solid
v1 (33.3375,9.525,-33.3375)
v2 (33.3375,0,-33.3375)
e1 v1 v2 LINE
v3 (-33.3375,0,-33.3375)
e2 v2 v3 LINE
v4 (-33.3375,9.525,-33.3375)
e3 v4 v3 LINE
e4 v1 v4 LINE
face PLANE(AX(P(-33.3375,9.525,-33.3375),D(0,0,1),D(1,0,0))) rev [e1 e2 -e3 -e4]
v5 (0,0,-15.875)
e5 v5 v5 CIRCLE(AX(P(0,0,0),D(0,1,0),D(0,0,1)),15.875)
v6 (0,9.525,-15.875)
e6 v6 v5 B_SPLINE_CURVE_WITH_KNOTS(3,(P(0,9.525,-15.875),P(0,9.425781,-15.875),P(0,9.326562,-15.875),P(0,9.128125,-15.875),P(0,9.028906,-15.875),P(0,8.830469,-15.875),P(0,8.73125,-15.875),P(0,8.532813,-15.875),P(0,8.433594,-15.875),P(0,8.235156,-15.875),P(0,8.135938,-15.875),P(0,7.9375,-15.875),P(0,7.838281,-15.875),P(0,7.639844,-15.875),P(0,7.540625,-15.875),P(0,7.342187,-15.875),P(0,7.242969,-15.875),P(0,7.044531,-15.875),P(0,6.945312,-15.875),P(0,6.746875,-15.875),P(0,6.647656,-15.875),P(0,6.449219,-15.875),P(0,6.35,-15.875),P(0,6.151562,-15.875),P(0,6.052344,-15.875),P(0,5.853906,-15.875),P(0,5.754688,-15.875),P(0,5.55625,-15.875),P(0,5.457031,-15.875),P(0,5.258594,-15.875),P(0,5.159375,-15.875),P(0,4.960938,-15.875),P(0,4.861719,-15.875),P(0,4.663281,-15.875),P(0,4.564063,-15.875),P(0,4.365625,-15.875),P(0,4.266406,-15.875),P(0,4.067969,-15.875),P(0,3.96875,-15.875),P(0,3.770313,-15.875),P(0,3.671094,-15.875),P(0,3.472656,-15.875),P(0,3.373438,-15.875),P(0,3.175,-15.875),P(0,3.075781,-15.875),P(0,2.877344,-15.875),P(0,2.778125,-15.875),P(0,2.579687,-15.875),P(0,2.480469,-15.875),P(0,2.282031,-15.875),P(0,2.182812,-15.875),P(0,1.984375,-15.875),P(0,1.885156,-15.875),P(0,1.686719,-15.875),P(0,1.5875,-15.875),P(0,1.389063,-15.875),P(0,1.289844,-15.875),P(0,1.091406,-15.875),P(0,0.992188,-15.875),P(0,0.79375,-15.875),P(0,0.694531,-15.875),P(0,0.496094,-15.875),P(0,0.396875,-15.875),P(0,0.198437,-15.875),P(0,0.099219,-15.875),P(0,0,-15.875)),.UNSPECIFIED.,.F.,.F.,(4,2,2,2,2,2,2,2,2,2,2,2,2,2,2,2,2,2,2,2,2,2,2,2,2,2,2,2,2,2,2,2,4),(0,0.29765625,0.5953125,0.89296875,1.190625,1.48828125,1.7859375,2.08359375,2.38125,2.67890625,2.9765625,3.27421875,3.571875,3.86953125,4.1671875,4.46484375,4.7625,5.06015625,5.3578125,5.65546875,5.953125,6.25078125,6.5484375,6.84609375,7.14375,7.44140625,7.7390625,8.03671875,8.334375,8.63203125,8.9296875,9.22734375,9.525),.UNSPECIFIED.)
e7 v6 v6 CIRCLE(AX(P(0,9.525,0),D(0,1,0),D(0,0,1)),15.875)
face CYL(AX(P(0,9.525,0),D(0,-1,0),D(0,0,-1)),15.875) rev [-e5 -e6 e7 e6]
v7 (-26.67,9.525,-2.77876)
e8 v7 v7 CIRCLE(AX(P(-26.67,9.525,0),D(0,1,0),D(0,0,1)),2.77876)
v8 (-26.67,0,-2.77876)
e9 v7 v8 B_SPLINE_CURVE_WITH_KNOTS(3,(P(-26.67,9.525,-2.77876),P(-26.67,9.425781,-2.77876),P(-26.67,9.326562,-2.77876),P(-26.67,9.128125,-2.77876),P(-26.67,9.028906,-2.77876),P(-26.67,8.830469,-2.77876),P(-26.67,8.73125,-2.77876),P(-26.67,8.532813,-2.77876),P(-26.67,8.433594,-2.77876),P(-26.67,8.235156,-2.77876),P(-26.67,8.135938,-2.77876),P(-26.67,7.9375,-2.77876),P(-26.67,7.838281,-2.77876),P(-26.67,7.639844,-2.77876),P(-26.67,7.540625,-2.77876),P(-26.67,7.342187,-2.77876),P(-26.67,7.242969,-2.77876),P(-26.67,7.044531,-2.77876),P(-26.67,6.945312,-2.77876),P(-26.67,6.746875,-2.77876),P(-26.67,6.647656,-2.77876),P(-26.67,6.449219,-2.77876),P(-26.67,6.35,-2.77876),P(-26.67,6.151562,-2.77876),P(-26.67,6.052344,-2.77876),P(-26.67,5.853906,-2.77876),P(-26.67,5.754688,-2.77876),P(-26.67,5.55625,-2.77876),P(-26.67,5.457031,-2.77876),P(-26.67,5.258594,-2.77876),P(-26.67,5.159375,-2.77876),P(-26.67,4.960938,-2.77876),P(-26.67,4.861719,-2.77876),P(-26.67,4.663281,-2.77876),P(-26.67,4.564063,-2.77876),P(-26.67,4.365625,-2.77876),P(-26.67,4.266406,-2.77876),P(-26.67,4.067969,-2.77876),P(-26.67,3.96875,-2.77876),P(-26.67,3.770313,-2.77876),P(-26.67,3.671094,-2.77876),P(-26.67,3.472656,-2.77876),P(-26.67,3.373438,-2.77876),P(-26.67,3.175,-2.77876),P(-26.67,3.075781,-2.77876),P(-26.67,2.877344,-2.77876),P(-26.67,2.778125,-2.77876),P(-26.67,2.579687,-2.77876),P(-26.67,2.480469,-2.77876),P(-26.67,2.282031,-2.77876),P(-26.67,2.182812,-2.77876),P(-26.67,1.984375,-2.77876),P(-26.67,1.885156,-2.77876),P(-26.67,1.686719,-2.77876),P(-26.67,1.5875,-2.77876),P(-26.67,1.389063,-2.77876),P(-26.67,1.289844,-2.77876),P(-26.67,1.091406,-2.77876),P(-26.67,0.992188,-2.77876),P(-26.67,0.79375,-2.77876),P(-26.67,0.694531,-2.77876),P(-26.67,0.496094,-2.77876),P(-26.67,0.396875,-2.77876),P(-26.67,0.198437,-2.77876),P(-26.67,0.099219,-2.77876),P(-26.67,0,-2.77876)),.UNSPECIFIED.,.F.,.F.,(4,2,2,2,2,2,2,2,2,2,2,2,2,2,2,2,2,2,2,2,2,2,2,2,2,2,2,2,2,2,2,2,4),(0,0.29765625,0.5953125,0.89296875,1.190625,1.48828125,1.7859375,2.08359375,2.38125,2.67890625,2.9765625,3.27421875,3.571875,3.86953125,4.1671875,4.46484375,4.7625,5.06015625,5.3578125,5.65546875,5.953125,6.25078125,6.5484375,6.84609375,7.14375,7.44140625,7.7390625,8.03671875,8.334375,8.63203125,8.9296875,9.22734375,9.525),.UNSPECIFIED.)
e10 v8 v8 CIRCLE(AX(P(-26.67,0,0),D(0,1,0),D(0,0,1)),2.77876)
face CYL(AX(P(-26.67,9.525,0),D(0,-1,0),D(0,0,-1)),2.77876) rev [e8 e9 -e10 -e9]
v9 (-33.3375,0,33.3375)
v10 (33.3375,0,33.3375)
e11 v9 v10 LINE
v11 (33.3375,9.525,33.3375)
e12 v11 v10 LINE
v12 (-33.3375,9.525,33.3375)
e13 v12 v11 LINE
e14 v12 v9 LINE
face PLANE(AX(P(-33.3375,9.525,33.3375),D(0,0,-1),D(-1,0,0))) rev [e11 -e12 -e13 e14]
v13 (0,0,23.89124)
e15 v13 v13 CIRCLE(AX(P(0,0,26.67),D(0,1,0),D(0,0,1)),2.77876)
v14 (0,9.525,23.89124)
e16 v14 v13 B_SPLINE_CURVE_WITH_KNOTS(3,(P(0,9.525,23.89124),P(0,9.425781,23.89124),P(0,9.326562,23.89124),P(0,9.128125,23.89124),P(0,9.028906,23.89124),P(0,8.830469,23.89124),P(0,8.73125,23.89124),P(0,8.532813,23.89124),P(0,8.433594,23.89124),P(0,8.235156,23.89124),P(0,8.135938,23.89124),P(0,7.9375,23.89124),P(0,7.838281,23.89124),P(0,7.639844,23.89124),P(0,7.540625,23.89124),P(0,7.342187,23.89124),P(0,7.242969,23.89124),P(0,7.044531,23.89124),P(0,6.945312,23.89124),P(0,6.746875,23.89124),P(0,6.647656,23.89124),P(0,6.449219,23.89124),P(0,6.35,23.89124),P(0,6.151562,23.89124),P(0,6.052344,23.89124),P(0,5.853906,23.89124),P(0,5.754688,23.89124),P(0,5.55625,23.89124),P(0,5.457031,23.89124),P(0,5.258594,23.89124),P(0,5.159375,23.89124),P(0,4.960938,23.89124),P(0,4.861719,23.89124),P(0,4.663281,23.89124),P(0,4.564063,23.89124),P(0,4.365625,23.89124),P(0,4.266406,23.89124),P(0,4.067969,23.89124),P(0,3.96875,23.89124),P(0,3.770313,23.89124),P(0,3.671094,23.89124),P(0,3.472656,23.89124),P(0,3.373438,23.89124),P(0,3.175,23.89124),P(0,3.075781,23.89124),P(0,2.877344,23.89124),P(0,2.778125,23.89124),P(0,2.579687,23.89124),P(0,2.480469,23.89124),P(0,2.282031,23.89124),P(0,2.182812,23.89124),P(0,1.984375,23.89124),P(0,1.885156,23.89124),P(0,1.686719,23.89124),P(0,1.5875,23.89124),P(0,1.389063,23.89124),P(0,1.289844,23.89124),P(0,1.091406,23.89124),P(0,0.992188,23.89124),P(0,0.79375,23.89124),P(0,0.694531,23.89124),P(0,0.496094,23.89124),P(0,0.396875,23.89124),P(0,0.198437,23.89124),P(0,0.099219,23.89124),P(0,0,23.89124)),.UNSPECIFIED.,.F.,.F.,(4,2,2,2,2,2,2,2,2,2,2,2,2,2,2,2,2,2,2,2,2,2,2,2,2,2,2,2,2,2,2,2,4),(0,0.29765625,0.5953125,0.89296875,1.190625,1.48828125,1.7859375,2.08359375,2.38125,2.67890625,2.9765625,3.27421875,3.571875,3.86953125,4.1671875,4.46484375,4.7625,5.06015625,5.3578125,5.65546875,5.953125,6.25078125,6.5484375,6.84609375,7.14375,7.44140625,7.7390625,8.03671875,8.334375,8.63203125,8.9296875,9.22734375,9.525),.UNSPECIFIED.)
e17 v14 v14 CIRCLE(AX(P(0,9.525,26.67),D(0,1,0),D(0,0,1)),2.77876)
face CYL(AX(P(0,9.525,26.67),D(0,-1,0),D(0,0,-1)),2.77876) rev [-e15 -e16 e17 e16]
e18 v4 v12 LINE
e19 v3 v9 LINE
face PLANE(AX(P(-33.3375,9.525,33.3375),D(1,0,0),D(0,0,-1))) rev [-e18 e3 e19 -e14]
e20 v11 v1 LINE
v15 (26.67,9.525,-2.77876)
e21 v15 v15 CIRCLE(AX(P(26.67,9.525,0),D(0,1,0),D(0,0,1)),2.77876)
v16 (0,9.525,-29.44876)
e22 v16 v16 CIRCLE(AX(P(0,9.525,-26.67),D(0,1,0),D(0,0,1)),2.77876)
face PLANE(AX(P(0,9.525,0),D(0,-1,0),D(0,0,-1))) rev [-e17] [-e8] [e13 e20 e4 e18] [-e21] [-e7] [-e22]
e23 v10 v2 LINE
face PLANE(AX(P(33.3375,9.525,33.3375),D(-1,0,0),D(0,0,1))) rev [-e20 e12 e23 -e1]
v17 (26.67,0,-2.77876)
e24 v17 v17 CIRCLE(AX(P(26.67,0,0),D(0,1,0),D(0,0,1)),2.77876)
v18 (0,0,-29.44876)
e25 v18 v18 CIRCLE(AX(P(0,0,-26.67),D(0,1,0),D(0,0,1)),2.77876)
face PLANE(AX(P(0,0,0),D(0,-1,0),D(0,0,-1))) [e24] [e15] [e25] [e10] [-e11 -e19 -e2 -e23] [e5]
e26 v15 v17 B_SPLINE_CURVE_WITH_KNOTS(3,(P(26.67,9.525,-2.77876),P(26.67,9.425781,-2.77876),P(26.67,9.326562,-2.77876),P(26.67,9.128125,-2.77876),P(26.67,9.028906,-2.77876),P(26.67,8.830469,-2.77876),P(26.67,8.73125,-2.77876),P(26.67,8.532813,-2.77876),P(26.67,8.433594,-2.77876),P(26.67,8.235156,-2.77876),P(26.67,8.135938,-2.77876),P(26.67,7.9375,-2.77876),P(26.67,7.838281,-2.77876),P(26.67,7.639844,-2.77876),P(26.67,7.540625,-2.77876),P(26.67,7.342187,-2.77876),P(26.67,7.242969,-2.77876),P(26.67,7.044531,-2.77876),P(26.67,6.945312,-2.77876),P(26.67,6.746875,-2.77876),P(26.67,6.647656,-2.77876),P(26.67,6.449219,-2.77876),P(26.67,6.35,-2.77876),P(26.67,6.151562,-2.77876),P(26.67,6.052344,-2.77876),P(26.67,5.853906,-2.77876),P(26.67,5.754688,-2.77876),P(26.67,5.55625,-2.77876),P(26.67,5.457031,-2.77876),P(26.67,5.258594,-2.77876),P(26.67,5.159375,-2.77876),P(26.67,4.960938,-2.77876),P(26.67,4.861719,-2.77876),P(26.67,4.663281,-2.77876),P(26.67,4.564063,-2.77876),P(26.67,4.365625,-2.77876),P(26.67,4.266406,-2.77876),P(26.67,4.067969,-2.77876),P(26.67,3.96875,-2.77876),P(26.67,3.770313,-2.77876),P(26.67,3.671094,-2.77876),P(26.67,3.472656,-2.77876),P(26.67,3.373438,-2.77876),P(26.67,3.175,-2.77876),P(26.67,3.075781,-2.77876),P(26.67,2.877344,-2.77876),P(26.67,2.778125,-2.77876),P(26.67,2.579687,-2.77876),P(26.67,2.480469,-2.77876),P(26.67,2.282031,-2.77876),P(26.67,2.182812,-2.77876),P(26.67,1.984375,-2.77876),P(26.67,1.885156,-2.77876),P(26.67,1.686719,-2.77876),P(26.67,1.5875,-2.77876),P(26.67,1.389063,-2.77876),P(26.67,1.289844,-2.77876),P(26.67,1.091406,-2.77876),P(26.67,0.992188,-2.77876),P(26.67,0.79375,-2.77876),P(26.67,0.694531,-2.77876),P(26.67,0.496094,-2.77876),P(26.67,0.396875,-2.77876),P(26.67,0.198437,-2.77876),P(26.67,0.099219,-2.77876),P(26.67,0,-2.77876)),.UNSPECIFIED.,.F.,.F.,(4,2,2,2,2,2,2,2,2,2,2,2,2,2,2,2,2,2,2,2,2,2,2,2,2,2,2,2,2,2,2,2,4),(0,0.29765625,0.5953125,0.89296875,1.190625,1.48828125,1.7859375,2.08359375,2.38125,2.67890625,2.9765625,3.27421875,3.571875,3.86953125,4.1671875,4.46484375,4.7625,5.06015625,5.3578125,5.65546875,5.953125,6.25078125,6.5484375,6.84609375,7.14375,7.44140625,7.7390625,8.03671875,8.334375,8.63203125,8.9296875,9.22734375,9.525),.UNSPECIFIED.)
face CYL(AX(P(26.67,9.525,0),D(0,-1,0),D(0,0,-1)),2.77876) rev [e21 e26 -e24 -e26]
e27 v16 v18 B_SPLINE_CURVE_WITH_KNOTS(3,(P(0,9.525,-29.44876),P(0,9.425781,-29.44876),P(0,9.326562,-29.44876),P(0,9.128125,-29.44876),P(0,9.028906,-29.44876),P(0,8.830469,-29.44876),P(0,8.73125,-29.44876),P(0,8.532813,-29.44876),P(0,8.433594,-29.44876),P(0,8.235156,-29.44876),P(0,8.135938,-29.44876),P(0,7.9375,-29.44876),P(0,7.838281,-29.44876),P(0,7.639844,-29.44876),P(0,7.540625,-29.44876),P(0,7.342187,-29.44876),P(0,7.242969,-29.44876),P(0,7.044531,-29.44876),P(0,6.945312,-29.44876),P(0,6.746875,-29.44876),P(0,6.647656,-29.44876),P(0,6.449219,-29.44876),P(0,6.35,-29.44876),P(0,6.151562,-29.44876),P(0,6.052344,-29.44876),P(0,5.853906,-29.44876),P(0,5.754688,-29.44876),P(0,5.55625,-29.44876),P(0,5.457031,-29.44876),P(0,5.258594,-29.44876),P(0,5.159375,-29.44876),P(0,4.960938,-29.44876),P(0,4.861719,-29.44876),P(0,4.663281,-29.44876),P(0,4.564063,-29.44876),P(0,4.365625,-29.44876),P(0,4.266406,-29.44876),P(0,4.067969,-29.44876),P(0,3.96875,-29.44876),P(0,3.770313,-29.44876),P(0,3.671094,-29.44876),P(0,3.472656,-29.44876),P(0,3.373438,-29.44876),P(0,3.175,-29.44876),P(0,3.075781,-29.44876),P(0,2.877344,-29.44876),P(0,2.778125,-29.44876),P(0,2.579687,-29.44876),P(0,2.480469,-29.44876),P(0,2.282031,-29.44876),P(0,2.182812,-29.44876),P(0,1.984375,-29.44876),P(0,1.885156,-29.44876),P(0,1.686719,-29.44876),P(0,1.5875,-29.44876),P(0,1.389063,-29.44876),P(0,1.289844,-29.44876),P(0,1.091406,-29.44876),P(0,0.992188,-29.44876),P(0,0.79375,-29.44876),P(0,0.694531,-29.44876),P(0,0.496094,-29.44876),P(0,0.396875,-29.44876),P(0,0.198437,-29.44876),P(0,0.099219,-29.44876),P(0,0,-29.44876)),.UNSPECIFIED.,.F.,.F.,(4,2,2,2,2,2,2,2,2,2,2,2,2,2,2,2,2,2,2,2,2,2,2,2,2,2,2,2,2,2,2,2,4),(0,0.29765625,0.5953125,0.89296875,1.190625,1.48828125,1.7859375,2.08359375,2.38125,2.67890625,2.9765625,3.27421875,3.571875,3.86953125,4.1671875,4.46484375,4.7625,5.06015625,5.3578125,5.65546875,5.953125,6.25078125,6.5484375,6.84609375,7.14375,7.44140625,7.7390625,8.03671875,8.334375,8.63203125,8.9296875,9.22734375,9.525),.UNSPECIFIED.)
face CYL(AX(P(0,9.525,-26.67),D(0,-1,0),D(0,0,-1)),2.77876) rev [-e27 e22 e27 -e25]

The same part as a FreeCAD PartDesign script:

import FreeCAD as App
import Part
import Sketcher
from FreeCAD import Vector
Q = App.Units.Quantity

doc = App.newDocument("Part")
body = doc.addObject("PartDesign::Body", "Body")

sketch1 = body.newObject("Sketcher::SketchObject", "Sketch")
sketch1.AttachmentSupport = (doc.getObject("XZ_Plane"), [""])
sketch1.MapMode = "FlatFace"
sketch1.addGeometry(Part.LineSegment(Vector(-33.3, -33.3, 0), Vector(-33.3, 33.3, 0)), False)
sketch1.addGeometry(Part.LineSegment(Vector(-33.3, 33.3, 0), Vector(33.3, 33.3, 0)), False)
sketch1.addGeometry(Part.LineSegment(Vector(33.3, 33.3, 0), Vector(33.3, -33.3, 0)), False)
sketch1.addGeometry(Part.LineSegment(Vector(33.3, -33.3, 0), Vector(-33.3, -33.3, 0)), False)
sketch1.addGeometry(Part.Circle(Vector(0, 26.7, 0), Vector(0, 0, 1), 2.8), False)
sketch1.addGeometry(Part.Circle(Vector(-26.7, 0, 0), Vector(0, 0, 1), 2.8), False)
sketch1.addGeometry(Part.Circle(Vector(0, 0, 0), Vector(0, 0, 1), 15.9), False)
sketch1.addGeometry(Part.Circle(Vector(26.7, 0, 0), Vector(0, 0, 1), 2.8), False)
sketch1.addGeometry(Part.Circle(Vector(0, -26.7, 0), Vector(0, 0, 1), 2.8), False)
sketch1.addConstraint(Sketcher.Constraint("Coincident", 0, 2, 1, 1))
sketch1.addConstraint(Sketcher.Constraint("Coincident", 1, 2, 2, 1))
sketch1.addConstraint(Sketcher.Constraint("Coincident", 2, 2, 3, 1))
sketch1.addConstraint(Sketcher.Constraint("Coincident", 3, 2, 0, 1))
sketch1.addConstraint(Sketcher.Constraint("Vertical", 0))
sketch1.addConstraint(Sketcher.Constraint("Horizontal", 1))
sketch1.addConstraint(Sketcher.Constraint("Vertical", 2))
sketch1.addConstraint(Sketcher.Constraint("Horizontal", 3))
sketch1.addConstraint(Sketcher.Constraint("Coincident", 6, 3, -1, 1))
sketch1.addConstraint(Sketcher.Constraint("Equal", 4, 5))
sketch1.addConstraint(Sketcher.Constraint("Equal", 5, 7))
sketch1.addConstraint(Sketcher.Constraint("Equal", 7, 8))
sketch1.addConstraint(Sketcher.Constraint("Symmetric", 5, 3, 7, 3, -1, 1))
sketch1.addConstraint(Sketcher.Constraint("Symmetric", 4, 3, 8, 3, -1, 1))
sketch1.addConstraint(Sketcher.Constraint("Symmetric", 0, 2, 2, 2, -1, 1))
sketch1.addConstraint(Sketcher.Constraint("PointOnObject", 4, 3, -2))
sketch1.addConstraint(Sketcher.Constraint("PointOnObject", 5, 3, -1))
sketch1.addConstraint(Sketcher.Constraint("Equal", 3, 0))
sketch1.addConstraint(Sketcher.Constraint("Diameter", 6, Q("1.25 in")))
sketch1.addConstraint(Sketcher.Constraint("Diameter", 4, Q("0.2188 in")))
sketch1.addConstraint(Sketcher.Constraint("DistanceX", 5, 3, 7, 3, Q("2.1 in")))
sketch1.addConstraint(Sketcher.Constraint("DistanceY", 8, 3, 4, 3, Q("2.1 in")))
sketch1.addConstraint(Sketcher.Constraint("DistanceX", 1, 1, 1, 2, Q("2.625 in")))
pad1 = body.newObject("PartDesign::Pad", "Pad")
pad1.Profile = sketch1
pad1.Length = Q("0.375 in")
pad1.Reversed = True

doc.recompute()
